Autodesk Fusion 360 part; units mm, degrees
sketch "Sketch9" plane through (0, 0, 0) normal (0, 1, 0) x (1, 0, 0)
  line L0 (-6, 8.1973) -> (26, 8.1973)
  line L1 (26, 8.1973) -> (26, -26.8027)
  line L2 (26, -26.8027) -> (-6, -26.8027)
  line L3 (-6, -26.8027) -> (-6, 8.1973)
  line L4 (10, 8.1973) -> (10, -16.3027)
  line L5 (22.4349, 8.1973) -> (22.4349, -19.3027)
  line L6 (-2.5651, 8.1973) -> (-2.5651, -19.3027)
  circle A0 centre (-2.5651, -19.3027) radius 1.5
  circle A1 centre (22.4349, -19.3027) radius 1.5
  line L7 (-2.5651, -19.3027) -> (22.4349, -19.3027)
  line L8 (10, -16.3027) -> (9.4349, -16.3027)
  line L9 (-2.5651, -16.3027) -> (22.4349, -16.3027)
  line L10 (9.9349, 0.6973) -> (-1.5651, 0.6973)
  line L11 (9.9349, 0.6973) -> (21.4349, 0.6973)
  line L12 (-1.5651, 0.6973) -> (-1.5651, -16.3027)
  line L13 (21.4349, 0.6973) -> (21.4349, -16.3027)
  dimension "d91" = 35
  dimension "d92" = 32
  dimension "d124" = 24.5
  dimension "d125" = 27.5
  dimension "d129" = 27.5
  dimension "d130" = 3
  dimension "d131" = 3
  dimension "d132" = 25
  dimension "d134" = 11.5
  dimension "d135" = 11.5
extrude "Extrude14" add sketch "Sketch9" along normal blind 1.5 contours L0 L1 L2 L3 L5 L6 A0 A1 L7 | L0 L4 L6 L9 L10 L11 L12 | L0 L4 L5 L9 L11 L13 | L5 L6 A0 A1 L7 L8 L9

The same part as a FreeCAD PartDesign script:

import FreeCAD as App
import Part
import Sketcher


def add_polygon(sketch, points):
    """Adds a closed chain of lines whose ends are joined by coincident constraints."""
    first, n = sketch.GeometryCount, len(points)
    for a, b in zip(points, points[1:] + points[:1]):
        sketch.addGeometry(Part.LineSegment(App.Vector(*a, 0), App.Vector(*b, 0)), False)
    for i in range(n):
        sketch.addConstraint(Sketcher.Constraint("Coincident", first + i, 2, first + (i + 1) % n, 1))

doc = App.newDocument("Part")
params = doc.addObject("Spreadsheet::Sheet", "Params")
for row, (alias, value) in enumerate([
    ("sketch1_diameter", "3 mm"),
    ("sketch1_width", "32 mm"),
    ("sketch1_height", "35 mm"),
    ("sketch1_width2", "23 mm"),
    ("pad1_length", "1.5 mm"),
], start=1):
    params.set(f"A{row}", alias)
    params.set(f"B{row}", "=" + value)
    params.setAlias(f"B{row}", alias)

body = doc.addObject("PartDesign::Body", "Body")

sketch1 = body.newObject("Sketcher::SketchObject", "Sketch")
sketch1.AttachmentSupport = (doc.getObject("XZ_Plane"), [""])
sketch1.MapMode = "FlatFace"
add_polygon(sketch1, [(-6, -8.2), (-6, 26.8), (26, 26.8), (26, -8.2)])
sketch1.addGeometry(Part.Circle(App.Vector(-2.6, 19.3, 0), App.Vector(0, 0, 1), 1.5), False)
sketch1.addGeometry(Part.Circle(App.Vector(22.4, 19.3, 0), App.Vector(0, 0, 1), 1.5), False)
add_polygon(sketch1, [(21.4, -0.7), (21.4, 16.3), (-1.6, 16.3), (-1.6, -0.7)])
sketch1.addConstraint([
    Sketcher.Constraint("Vertical", 0),
    Sketcher.Constraint("Horizontal", 1),
    Sketcher.Constraint("Vertical", 2),
    Sketcher.Constraint("Horizontal", 3),
    Sketcher.Constraint("Vertical", 6),
    Sketcher.Constraint("Horizontal", 7),
    Sketcher.Constraint("Vertical", 8),
    Sketcher.Constraint("Horizontal", 9),
    Sketcher.Constraint("Equal", 4, 5),
    Sketcher.Constraint("Horizontal", 4, 3, 5, 3),
    Sketcher.Constraint("Diameter", 4, 3.0),
    Sketcher.Constraint("DistanceX", 1, 1, 1, 2, 32.0),
    Sketcher.Constraint("DistanceY", 0, 1, 0, 2, 35.0),
    Sketcher.Constraint("DistanceX", 4, 3, 5, 3, 25.0),
    Sketcher.Constraint("DistanceY", 6, 2, 5, 3, 3.0),
    Sketcher.Constraint("DistanceY", 2, 2, 5, 3, 27.5),
    Sketcher.Constraint("DistanceY", 8, 2, 0, 2, 27.5),
    Sketcher.Constraint("DistanceX", 7, 2, 7, 1, 23.0),
    Sketcher.Constraint("DistanceX", 0, 2, -1, 1, 6.0),
    Sketcher.Constraint("DistanceX", 6, 2, 5, 3, 1.0),
    Sketcher.Constraint("DistanceX", 4, 3, -1, 1, 2.565),
    Sketcher.Constraint("DistanceY", -1, 1, 4, 3, 19.3027),
])
sketch1.setExpression("Constraints[18]", "Params.sketch1_diameter")
sketch1.setExpression("Constraints[19]", "Params.sketch1_width")
sketch1.setExpression("Constraints[20]", "Params.sketch1_height")
sketch1.setExpression("Constraints[25]", "Params.sketch1_width2")
pad1 = body.newObject("PartDesign::Pad", "Pad")
pad1.Profile = sketch1
pad1.setExpression("Length", "Params.pad1_length")
pad1.Reversed = True

doc.recompute()
